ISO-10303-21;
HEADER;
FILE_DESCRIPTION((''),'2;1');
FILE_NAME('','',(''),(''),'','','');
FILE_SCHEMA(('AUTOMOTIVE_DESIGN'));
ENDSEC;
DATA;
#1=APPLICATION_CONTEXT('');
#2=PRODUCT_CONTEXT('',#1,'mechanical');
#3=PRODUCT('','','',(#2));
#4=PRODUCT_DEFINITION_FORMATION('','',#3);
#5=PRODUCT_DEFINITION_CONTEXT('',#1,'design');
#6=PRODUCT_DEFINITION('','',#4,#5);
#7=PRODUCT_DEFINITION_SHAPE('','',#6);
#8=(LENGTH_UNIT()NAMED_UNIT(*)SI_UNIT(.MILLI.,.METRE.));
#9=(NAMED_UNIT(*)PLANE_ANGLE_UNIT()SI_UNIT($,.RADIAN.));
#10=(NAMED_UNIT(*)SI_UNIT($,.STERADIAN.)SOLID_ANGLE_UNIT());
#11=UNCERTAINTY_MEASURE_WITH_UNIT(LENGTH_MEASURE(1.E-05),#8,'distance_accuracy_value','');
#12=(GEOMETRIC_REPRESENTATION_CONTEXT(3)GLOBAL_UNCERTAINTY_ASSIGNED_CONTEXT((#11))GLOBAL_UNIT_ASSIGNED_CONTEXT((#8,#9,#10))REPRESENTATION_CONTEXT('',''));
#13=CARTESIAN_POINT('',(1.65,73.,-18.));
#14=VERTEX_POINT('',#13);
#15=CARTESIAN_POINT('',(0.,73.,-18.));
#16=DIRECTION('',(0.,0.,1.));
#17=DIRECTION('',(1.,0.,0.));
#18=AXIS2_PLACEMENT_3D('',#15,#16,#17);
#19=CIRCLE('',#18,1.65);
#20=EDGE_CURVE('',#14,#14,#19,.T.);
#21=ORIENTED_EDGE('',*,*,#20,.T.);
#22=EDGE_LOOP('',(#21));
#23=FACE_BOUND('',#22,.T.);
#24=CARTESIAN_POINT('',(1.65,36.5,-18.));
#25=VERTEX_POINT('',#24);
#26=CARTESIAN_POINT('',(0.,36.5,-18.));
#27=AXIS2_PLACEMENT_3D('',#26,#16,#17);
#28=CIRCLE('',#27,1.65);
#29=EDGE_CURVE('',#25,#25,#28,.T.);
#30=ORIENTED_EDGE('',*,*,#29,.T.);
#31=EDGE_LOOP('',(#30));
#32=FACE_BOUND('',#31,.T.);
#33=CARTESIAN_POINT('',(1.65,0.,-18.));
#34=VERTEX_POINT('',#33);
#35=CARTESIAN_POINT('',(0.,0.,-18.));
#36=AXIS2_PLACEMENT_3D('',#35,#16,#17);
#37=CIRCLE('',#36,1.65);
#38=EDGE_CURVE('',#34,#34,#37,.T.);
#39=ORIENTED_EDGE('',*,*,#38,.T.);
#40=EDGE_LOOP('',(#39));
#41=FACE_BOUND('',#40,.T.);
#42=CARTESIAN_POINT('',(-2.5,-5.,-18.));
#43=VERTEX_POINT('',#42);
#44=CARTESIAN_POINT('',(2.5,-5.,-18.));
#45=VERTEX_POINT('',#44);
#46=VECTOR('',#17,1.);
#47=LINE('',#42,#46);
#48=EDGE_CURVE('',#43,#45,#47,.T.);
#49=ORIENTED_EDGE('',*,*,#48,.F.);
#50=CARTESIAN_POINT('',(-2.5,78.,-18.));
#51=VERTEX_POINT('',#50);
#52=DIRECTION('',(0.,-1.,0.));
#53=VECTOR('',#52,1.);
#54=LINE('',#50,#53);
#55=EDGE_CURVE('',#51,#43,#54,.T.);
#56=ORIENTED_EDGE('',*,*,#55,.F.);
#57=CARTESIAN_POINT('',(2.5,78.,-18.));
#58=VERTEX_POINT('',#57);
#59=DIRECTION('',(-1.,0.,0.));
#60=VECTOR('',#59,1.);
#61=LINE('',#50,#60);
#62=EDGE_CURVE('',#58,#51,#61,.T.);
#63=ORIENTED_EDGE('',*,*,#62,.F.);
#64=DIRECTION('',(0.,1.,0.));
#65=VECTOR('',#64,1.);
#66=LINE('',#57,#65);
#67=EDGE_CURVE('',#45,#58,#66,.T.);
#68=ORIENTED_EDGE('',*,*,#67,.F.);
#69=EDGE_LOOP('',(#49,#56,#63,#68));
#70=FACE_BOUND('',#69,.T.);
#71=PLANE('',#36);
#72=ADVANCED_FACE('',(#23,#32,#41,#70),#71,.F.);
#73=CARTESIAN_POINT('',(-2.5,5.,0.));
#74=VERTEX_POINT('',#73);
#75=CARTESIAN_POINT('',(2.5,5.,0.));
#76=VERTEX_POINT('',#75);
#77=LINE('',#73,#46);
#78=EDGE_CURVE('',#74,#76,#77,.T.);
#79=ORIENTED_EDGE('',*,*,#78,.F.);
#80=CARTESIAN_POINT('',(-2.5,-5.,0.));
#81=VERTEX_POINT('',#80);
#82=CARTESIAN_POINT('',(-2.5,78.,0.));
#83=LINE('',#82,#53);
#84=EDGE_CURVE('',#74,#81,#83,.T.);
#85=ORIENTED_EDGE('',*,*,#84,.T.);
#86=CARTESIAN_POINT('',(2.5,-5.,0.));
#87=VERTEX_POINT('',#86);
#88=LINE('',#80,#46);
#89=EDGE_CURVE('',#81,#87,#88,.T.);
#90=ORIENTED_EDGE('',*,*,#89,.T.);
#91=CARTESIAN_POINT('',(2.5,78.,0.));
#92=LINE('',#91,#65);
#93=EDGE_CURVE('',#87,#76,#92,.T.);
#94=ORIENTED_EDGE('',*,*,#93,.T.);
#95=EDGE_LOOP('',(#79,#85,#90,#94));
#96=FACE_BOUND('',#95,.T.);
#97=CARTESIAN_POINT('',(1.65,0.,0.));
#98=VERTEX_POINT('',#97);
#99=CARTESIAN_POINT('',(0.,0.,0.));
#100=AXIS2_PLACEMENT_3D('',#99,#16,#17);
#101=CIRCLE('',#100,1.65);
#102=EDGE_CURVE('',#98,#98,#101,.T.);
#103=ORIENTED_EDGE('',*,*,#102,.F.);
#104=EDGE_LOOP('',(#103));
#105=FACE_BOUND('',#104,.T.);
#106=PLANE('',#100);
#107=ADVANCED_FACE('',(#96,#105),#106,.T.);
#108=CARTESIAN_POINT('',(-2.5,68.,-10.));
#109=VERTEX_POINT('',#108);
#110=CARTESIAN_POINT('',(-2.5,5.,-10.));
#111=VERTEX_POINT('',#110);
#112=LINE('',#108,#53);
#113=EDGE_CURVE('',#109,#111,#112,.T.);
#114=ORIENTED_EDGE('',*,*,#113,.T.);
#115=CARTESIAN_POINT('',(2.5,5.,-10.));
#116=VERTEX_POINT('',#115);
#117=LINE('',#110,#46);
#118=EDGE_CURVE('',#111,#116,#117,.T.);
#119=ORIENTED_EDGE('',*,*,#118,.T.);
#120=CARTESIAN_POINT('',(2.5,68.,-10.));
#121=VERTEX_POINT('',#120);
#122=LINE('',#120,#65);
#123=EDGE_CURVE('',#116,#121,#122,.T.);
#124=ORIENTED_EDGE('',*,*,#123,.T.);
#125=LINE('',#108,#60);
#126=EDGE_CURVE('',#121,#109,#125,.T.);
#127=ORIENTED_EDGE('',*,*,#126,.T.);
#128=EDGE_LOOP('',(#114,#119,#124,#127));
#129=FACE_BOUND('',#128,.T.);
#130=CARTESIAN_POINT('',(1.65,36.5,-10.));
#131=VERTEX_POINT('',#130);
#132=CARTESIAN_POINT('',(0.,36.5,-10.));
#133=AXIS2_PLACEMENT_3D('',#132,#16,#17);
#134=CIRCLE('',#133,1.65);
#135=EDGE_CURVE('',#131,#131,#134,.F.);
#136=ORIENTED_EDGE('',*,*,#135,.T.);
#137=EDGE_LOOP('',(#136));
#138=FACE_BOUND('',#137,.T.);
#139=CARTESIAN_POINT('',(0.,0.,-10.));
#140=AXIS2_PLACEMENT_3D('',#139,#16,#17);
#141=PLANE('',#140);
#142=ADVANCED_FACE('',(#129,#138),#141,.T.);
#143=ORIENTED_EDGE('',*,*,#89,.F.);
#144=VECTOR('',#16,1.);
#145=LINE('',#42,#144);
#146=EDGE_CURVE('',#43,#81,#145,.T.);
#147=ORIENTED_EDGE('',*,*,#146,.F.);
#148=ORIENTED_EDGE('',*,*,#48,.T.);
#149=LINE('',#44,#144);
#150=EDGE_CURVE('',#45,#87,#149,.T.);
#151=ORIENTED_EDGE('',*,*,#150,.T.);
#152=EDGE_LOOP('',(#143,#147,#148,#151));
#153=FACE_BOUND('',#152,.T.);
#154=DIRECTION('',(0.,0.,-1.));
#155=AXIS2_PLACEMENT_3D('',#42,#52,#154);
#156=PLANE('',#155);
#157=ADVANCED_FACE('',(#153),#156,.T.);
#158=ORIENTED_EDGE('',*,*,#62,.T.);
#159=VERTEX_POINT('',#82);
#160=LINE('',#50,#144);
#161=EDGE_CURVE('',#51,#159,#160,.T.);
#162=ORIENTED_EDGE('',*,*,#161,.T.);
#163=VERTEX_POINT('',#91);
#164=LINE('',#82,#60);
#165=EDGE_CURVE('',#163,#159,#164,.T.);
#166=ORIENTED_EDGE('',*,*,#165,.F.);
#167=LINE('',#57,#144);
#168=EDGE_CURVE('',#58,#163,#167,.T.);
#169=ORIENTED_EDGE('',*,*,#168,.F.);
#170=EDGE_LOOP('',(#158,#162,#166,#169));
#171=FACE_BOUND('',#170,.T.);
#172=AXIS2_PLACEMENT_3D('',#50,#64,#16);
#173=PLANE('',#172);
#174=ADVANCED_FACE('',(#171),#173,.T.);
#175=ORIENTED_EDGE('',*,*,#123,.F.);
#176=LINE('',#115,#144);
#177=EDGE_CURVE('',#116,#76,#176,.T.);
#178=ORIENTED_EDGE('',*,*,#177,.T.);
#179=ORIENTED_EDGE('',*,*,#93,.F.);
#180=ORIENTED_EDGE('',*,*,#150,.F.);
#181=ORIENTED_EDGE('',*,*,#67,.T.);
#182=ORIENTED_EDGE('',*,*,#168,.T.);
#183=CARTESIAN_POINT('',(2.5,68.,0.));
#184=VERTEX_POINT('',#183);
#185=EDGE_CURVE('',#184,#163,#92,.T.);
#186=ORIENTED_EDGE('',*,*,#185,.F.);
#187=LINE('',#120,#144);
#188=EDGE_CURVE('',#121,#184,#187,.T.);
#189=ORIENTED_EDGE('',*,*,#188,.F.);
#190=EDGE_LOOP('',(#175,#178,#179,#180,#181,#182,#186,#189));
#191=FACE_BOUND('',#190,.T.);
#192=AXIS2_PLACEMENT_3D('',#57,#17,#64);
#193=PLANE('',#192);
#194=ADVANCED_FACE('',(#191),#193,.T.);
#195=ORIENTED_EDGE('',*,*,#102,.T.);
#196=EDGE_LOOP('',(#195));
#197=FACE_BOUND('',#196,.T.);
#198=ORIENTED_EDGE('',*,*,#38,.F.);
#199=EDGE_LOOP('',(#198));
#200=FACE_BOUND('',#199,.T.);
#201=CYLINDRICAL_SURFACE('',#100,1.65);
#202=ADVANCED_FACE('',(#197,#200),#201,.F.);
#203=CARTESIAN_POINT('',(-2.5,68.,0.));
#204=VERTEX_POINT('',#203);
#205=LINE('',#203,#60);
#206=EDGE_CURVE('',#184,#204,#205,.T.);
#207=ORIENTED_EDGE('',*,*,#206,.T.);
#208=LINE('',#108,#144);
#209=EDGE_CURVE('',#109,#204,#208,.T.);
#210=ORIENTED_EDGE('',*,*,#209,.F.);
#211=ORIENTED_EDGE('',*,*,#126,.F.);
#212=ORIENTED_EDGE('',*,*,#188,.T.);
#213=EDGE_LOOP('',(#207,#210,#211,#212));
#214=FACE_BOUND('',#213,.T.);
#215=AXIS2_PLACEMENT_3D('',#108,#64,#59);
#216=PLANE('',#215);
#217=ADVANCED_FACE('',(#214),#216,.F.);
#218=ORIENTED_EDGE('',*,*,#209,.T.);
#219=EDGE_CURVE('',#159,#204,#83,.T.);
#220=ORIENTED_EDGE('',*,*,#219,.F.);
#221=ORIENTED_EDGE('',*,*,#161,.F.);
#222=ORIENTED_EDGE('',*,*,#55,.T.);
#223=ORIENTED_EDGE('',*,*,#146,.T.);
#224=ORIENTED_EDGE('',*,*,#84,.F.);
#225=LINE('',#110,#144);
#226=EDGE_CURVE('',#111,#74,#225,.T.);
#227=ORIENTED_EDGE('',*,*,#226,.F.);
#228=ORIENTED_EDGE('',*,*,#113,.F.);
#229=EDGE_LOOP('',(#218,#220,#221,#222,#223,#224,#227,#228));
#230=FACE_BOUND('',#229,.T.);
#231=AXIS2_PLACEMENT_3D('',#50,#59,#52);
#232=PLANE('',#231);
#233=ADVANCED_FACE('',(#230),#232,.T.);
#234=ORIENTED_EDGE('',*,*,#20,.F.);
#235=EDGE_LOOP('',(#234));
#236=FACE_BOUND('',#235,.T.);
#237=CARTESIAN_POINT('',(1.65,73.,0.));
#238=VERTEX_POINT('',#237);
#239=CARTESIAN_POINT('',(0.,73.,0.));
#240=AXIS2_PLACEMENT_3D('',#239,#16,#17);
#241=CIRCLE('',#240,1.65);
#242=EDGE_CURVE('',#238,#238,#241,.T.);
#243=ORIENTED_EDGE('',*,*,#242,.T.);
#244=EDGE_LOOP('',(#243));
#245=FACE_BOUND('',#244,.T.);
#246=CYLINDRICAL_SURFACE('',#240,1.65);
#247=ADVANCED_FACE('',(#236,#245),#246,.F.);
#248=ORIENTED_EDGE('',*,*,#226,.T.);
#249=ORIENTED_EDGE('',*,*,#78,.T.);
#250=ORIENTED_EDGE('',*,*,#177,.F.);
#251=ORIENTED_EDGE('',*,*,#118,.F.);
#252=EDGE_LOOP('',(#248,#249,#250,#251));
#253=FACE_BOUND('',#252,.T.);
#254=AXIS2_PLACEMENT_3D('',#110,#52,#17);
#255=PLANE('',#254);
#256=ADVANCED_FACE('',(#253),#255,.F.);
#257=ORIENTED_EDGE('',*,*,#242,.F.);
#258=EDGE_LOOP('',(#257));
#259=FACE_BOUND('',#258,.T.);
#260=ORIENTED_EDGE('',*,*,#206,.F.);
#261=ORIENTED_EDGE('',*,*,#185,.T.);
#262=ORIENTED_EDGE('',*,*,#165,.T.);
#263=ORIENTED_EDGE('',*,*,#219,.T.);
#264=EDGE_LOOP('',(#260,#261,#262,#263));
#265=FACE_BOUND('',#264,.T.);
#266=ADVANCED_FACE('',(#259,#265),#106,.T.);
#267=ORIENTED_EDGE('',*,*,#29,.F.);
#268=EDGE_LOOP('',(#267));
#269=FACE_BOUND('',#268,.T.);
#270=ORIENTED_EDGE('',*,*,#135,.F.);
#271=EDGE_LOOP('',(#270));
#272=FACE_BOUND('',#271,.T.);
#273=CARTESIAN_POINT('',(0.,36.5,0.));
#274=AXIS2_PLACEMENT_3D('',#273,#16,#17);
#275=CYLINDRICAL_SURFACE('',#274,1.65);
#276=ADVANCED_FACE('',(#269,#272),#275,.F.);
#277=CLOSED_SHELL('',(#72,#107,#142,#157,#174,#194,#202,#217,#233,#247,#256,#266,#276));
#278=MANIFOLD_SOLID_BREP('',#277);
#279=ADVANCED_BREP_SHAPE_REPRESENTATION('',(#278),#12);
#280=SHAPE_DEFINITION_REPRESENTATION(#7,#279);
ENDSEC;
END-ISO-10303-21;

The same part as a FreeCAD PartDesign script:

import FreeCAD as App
import Part
import Sketcher

V = App.Vector
Q = App.Units.Quantity

doc = App.newDocument("Part")
body = doc.addObject("PartDesign::Body", "Body")

# Sketch on XY plane
sketch1 = body.newObject("Sketcher::SketchObject", "Sketch")
sketch1.AttachmentSupport = (doc.getObject("XY_Plane"), [""])
sketch1.MapMode = "FlatFace"
sketch1.addGeometry(Part.LineSegment(V(-2.5, 78, 0), V(-2.5, -5, 0)), False)
sketch1.addGeometry(Part.LineSegment(V(-2.5, -5, 0), V(2.5, -5, 0)), False)
sketch1.addGeometry(Part.LineSegment(V(2.5, -5, 0), V(2.5, 78, 0)), False)
sketch1.addGeometry(Part.LineSegment(V(2.5, 78, 0), V(-2.5, 78, 0)), False)
sketch1.addConstraint(Sketcher.Constraint("Coincident", 0, 2, 1, 1))
sketch1.addConstraint(Sketcher.Constraint("Coincident", 1, 2, 2, 1))
sketch1.addConstraint(Sketcher.Constraint("Coincident", 2, 2, 3, 1))
sketch1.addConstraint(Sketcher.Constraint("Coincident", 3, 2, 0, 1))
sketch1.addConstraint(Sketcher.Constraint("Vertical", 0))
sketch1.addConstraint(Sketcher.Constraint("Horizontal", 1))
sketch1.addConstraint(Sketcher.Constraint("Vertical", 2))
sketch1.addConstraint(Sketcher.Constraint("Horizontal", 3))
sketch1.addConstraint(Sketcher.Constraint("DistanceX", 1, 1, 1, 2, Q("5 mm")))
sketch1.addConstraint(Sketcher.Constraint("DistanceY", 0, 2, 0, 1, Q("83 mm")))
sketch1.addConstraint(Sketcher.Constraint("DistanceY", 0, 2, -1, 1, Q("5 mm")))
sketch1.addConstraint(Sketcher.Constraint("DistanceX", 0, 2, -1, 1, Q("2.5 mm")))
pad1 = body.newObject("PartDesign::Pad", "Pad")
pad1.Profile = sketch1
pad1.Length = 18
pad1.Reversed = True

# Sketch on XY plane
sketch2 = body.newObject("Sketcher::SketchObject", "Sketch001")
sketch2.AttachmentSupport = (doc.getObject("XY_Plane"), [""])
sketch2.MapMode = "FlatFace"
sketch2.addGeometry(Part.Circle(V(0, 0, 0), V(0, 0, 1), 1.65), False)
sketch2.addGeometry(Part.Circle(V(0, 36.5, 0), V(0, 0, 1), 1.65), False)
sketch2.addGeometry(Part.Circle(V(0, 73, 0), V(0, 0, 1), 1.65), False)
sketch2.addConstraint(Sketcher.Constraint("Coincident", 0, 3, -1, 1))
sketch2.addConstraint(Sketcher.Constraint("Equal", 0, 1))
sketch2.addConstraint(Sketcher.Constraint("Equal", 1, 2))
sketch2.addConstraint(Sketcher.Constraint("PointOnObject", 1, 3, -2))
sketch2.addConstraint(Sketcher.Constraint("PointOnObject", 2, 3, -2))
sketch2.addConstraint(Sketcher.Constraint("Diameter", 0, Q("3.3 mm")))
sketch2.addConstraint(Sketcher.Constraint("DistanceY", -1, 1, 2, 3, Q("73 mm")))
sketch2.addConstraint(Sketcher.Constraint("DistanceY", -1, 1, 1, 3, Q("36.5 mm")))
doc.recompute()
hole = body.newObject("PartDesign::Hole", "Hole")
hole.Profile = sketch2
hole.ThreadType = "None"
hole.Diameter = 3.3
hole.DepthType = "ThroughAll"

# Sketch on XY plane
sketch3 = body.newObject("Sketcher::SketchObject", "Sketch002")
sketch3.AttachmentSupport = (doc.getObject("XY_Plane"), [""])
sketch3.MapMode = "FlatFace"
sketch3.addGeometry(Part.LineSegment(V(-2.5, 68, 0), V(-2.5, 5, 0)), False)
sketch3.addGeometry(Part.LineSegment(V(-2.5, 5, 0), V(2.5, 5, 0)), False)
sketch3.addGeometry(Part.LineSegment(V(2.5, 5, 0), V(2.5, 68, 0)), False)
sketch3.addGeometry(Part.LineSegment(V(2.5, 68, 0), V(-2.5, 68, 0)), False)
sketch3.addConstraint(Sketcher.Constraint("Coincident", 0, 2, 1, 1))
sketch3.addConstraint(Sketcher.Constraint("Coincident", 1, 2, 2, 1))
sketch3.addConstraint(Sketcher.Constraint("Coincident", 2, 2, 3, 1))
sketch3.addConstraint(Sketcher.Constraint("Coincident", 3, 2, 0, 1))
sketch3.addConstraint(Sketcher.Constraint("Vertical", 0))
sketch3.addConstraint(Sketcher.Constraint("Horizontal", 1))
sketch3.addConstraint(Sketcher.Constraint("Vertical", 2))
sketch3.addConstraint(Sketcher.Constraint("Horizontal", 3))
sketch3.addConstraint(Sketcher.Constraint("DistanceX", 1, 1, 1, 2, Q("5 mm")))
sketch3.addConstraint(Sketcher.Constraint("DistanceY", 0, 2, 0, 1, Q("63 mm")))
sketch3.addConstraint(Sketcher.Constraint("DistanceY", -1, 1, 0, 2, Q("5 mm")))
sketch3.addConstraint(Sketcher.Constraint("DistanceX", 0, 2, -1, 1, Q("2.5 mm")))
pocket1 = body.newObject("PartDesign::Pocket", "Pocket")
pocket1.Profile = sketch3
pocket1.Length = 10

doc.recompute()
